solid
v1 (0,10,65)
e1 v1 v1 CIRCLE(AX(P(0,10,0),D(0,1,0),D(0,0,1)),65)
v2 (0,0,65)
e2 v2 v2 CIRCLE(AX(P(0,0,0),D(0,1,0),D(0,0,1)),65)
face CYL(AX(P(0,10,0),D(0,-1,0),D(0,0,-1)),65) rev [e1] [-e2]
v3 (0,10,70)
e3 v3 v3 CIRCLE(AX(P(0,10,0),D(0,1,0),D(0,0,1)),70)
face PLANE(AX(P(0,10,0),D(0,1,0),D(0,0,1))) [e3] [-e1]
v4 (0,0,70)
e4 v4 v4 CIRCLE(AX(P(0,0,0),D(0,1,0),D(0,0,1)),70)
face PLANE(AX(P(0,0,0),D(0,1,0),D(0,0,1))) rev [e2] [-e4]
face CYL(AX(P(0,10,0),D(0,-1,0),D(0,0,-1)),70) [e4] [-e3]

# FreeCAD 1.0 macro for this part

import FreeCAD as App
import Part
import Sketcher
Q = App.Units.Quantity

doc = App.newDocument("Part")
body = doc.addObject("PartDesign::Body", "Body")

# Sketch on XZ plane
sketch1 = doc.addObject("Sketcher::SketchObject", "Sketch")
body.addObject(sketch1)
sketch1.AttachmentSupport = (doc.XZ_Plane, [""])
sketch1.MapMode = "FlatFace"
sketch1.addGeometry([
    Part.Circle(App.Vector(0, 0, 0), App.Vector(0, 0, 1), 70),
    Part.Circle(App.Vector(0, 0, 0), App.Vector(0, 0, 1), 65),
], False)
sketch1.addConstraint([
    Sketcher.Constraint("Coincident", 0, 3, -1, 1),
    Sketcher.Constraint("Coincident", 1, 3, -1, 1),
    Sketcher.Constraint("Diameter", 0, Q("140 mm")),
    Sketcher.Constraint("Diameter", 1, Q("130 mm")),
])
pad1 = doc.addObject("PartDesign::Pad", "Pad")
body.addObject(pad1)
pad1.Profile = sketch1
pad1.Length = 10
pad1.Reversed = True

doc.recompute()
